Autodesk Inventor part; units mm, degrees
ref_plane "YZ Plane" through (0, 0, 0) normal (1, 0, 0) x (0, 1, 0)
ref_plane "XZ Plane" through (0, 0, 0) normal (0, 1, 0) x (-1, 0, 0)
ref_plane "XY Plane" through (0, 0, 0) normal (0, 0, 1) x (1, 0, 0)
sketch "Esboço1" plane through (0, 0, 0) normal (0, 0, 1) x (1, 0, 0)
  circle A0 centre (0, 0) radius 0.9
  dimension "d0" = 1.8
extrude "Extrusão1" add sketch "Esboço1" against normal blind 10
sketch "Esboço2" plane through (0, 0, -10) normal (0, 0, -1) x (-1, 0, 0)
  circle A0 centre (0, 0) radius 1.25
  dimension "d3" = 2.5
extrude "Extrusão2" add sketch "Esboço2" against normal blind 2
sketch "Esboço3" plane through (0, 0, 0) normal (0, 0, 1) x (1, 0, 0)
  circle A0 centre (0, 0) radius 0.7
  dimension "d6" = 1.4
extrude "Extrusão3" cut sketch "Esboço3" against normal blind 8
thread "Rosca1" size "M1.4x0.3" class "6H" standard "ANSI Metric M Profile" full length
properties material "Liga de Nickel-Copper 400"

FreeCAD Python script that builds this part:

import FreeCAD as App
import Part
import Sketcher
from FreeCAD import Vector

doc = App.newDocument("Part")
params = doc.addObject("Spreadsheet::Sheet", "Params")
for row, (alias, value) in enumerate([
    ("sketch1_diameter", "1.8 mm"),
    ("pad1_length", "10 mm"),
    ("sketch2_diameter", "2.5 mm"),
    ("pad2_length", "2 mm"),
    ("sketch3_diameter", "1.4 mm"),
    ("pocket1_length", "8 mm"),
], start=1):
    params.set(f"A{row}", alias)
    params.set(f"B{row}", "=" + value)
    params.setAlias(f"B{row}", alias)

body = doc.addObject("PartDesign::Body", "Body")

# Sketch on XY plane
sketch1 = body.newObject("Sketcher::SketchObject", "Sketch")
sketch1.AttachmentSupport = (doc.getObject("XY_Plane"), [""])
sketch1.MapMode = "FlatFace"
sketch1.addGeometry(Part.Circle(Vector(0, 0, 0), Vector(0, 0, 1), 0.9), False)
sketch1.addConstraint([
    Sketcher.Constraint("Coincident", 0, 3, -1, 1),
    Sketcher.Constraint("Diameter", 0, 1.8),
])
sketch1.setExpression("Constraints[1]", "Params.sketch1_diameter")
pad1 = body.newObject("PartDesign::Pad", "Pad")
pad1.Profile = sketch1
pad1.setExpression("Length", "Params.pad1_length")
pad1.Reversed = True

# Sketch on XY plane
sketch2 = body.newObject("Sketcher::SketchObject", "Sketch001")
sketch2.AttachmentSupport = (doc.getObject("XY_Plane"), [""])
sketch2.MapMode = "FlatFace"
sketch2.AttachmentOffset = App.Placement(Vector(0, 0, -10), App.Rotation())
sketch2.addGeometry(Part.Circle(Vector(0, 0, 0), Vector(0, 0, 1), 1.2), False)
sketch2.addConstraint([
    Sketcher.Constraint("Coincident", 0, 3, -1, 1),
    Sketcher.Constraint("Diameter", 0, 2.5),
])
sketch2.setExpression("Constraints[1]", "Params.sketch2_diameter")
pad2 = body.newObject("PartDesign::Pad", "Pad001")
pad2.Profile = sketch2
pad2.setExpression("Length", "Params.pad2_length")

# Sketch on XY plane
sketch3 = body.newObject("Sketcher::SketchObject", "Sketch002")
sketch3.AttachmentSupport = (doc.getObject("XY_Plane"), [""])
sketch3.MapMode = "FlatFace"
sketch3.addGeometry(Part.Circle(Vector(0, 0, 0), Vector(0, 0, 1), 0.7), False)
sketch3.addConstraint([
    Sketcher.Constraint("Coincident", 0, 3, -1, 1),
    Sketcher.Constraint("Diameter", 0, 1.4),
])
sketch3.setExpression("Constraints[1]", "Params.sketch3_diameter")
pocket1 = body.newObject("PartDesign::Pocket", "Pocket")
pocket1.Profile = sketch3
pocket1.setExpression("Length", "Params.pocket1_length")

doc.recompute()
